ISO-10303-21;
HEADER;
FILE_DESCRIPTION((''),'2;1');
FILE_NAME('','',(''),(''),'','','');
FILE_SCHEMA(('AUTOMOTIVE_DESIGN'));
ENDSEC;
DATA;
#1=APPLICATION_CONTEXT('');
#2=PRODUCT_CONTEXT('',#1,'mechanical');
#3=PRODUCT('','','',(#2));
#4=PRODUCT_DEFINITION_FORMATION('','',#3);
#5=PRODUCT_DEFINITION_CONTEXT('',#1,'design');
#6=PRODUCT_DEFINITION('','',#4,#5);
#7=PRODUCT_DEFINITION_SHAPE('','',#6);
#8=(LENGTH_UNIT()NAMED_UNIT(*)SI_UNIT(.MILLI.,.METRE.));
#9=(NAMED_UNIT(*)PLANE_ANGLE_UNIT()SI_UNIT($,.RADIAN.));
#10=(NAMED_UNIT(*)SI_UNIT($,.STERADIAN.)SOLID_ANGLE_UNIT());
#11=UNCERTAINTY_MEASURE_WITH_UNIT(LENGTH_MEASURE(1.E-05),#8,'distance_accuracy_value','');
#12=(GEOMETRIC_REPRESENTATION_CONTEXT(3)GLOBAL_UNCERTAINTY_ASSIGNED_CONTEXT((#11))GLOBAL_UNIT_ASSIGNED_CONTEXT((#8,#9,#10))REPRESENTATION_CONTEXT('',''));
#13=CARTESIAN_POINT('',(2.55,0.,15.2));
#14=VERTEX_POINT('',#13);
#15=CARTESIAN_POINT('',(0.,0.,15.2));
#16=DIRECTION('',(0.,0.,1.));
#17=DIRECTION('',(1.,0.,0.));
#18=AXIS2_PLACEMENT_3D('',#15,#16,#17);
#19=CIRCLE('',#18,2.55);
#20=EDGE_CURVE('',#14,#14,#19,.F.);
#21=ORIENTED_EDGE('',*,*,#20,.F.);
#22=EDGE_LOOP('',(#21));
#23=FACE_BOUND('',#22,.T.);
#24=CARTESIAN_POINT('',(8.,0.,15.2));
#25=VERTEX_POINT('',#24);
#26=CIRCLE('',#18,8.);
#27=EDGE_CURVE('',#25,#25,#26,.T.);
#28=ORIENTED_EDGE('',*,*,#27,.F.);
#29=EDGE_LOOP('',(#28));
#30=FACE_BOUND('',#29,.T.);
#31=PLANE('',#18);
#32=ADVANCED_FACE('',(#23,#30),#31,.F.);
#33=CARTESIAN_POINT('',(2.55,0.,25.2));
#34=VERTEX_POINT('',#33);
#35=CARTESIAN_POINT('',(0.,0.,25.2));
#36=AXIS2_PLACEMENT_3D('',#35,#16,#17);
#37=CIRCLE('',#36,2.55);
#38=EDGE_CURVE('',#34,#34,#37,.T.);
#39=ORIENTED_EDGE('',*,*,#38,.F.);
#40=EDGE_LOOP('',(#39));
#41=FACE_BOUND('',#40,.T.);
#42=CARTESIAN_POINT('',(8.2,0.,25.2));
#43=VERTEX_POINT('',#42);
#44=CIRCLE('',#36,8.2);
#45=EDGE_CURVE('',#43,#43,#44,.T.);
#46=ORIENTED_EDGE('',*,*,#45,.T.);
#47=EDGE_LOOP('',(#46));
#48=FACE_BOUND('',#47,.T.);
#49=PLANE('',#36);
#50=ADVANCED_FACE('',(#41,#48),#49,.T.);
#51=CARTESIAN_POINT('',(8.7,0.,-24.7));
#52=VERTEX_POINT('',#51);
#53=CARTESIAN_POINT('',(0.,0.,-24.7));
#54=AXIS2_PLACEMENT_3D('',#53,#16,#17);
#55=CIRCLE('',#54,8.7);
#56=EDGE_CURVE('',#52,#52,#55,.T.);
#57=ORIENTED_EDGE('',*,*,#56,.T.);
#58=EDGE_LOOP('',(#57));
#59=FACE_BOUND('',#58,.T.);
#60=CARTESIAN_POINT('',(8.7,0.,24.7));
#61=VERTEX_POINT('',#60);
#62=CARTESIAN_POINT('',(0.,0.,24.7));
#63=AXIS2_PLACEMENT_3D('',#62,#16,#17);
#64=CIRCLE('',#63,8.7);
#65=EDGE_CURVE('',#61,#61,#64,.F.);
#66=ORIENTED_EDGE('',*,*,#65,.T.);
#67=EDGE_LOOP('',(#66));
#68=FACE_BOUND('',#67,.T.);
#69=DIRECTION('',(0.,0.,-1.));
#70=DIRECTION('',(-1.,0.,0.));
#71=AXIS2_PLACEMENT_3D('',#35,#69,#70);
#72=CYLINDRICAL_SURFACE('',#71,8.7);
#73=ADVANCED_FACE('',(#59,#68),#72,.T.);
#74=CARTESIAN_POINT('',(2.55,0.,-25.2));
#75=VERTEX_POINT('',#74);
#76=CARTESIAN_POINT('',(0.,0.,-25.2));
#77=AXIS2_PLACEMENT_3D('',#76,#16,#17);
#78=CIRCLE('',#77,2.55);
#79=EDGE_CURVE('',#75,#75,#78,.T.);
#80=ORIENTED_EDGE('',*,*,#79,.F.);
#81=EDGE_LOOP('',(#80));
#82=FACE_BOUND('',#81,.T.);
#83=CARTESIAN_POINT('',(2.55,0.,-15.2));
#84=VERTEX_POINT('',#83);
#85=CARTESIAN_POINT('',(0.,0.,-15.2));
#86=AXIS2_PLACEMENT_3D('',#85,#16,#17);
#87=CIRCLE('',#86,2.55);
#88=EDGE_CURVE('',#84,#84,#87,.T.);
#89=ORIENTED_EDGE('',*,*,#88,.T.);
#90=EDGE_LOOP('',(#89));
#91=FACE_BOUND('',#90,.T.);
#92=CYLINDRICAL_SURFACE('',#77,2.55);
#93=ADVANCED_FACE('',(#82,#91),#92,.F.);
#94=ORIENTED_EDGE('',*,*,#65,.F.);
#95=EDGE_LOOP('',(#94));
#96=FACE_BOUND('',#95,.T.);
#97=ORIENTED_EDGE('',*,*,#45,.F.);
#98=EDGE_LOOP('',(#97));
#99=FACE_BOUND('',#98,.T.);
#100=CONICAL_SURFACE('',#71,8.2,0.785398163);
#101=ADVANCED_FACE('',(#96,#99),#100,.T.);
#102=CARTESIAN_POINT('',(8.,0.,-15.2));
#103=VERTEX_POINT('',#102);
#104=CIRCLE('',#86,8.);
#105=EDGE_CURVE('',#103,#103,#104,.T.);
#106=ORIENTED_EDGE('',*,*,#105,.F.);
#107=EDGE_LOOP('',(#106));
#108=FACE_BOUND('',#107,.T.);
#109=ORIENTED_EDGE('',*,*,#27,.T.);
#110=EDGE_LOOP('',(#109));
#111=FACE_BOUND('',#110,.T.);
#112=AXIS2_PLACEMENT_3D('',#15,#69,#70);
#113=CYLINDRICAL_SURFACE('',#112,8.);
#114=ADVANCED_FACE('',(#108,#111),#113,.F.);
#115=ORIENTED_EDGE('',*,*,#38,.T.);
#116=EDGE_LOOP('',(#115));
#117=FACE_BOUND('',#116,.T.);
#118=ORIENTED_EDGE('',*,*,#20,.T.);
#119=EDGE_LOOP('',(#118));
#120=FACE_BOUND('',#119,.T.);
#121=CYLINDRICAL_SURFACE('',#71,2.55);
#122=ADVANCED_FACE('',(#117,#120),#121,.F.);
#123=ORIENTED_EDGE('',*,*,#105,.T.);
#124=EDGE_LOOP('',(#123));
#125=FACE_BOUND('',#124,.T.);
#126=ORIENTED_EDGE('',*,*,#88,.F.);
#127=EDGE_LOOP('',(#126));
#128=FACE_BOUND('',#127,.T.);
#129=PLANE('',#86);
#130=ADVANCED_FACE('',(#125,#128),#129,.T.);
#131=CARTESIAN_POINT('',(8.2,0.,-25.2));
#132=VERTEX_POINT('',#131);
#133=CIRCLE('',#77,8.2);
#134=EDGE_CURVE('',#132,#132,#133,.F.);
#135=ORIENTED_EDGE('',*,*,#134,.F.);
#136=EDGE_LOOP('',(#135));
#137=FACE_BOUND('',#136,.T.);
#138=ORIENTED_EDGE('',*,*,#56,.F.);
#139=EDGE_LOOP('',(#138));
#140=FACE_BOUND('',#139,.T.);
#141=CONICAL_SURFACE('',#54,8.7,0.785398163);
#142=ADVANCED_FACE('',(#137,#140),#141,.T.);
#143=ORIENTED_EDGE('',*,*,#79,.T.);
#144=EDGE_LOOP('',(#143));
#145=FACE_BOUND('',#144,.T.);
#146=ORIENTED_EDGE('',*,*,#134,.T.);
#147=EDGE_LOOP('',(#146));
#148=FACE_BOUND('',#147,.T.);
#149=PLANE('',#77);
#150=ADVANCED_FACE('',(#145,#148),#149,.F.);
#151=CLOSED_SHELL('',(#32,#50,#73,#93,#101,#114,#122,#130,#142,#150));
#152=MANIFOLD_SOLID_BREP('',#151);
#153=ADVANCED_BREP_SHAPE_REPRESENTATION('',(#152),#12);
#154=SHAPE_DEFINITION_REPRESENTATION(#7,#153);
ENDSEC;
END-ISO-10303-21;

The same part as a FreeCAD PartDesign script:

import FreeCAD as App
import Part
import Sketcher
Q = App.Units.Quantity


def edges_at(feature, points):
    """Names of the edges that pass closest to the given points."""
    edges = feature.Shape.Edges
    near = lambda p: min(range(len(edges)), key=lambda i: edges[i].distToShape(Part.Vertex(*p))[0])
    return sorted({f"Edge{near(p) + 1}" for p in points})

doc = App.newDocument("Part")
body = doc.addObject("PartDesign::Body", "Body")

# Sketch on XY plane
sketch1 = body.newObject("Sketcher::SketchObject", "Sketch")
sketch1.AttachmentSupport = (doc.getObject("XY_Plane"), [""])
sketch1.MapMode = "FlatFace"
sketch1.addGeometry(Part.Circle(App.Vector(0, 0, 0), App.Vector(0, 0, 1), 8.7), False)
sketch1.addConstraint([
    Sketcher.Constraint("Coincident", 0, 3, -1, 1),
    Sketcher.Constraint("Diameter", 0, Q("17.4 mm")),
])
pad1 = body.newObject("PartDesign::Pad", "Pad")
pad1.Profile = sketch1
pad1.Type = "TwoLengths"
pad1.Length = 25.2
pad1.Length2 = 25.2

# Sketch on XY plane
sketch2 = body.newObject("Sketcher::SketchObject", "Sketch001")
sketch2.AttachmentSupport = (doc.getObject("XY_Plane"), [""])
sketch2.MapMode = "FlatFace"
sketch2.addGeometry(Part.Circle(App.Vector(0, 0, 0), App.Vector(0, 0, 1), 8), False)
sketch2.addConstraint([
    Sketcher.Constraint("Coincident", 0, 3, -1, 1),
    Sketcher.Constraint("Diameter", 0, Q("16 mm")),
])
pocket1 = body.newObject("PartDesign::Pocket", "Pocket")
pocket1.Profile = sketch2
pocket1.Type = "TwoLengths"
pocket1.Length = 15.2
pocket1.Length2 = 15.2
pocket1.Reversed = True
doc.recompute()

chamfer = body.newObject("PartDesign::Chamfer", "Chamfer")
chamfer.Base = (pocket1, edges_at(pocket1, [(-8.7, 0, 25.2), (-8.7, 0, -25.2)]))
chamfer.Size = 0.5

# Sketch on XY plane
sketch3 = body.newObject("Sketcher::SketchObject", "Sketch002")
sketch3.AttachmentSupport = (doc.getObject("XY_Plane"), [""])
sketch3.MapMode = "FlatFace"
sketch3.addGeometry(Part.Circle(App.Vector(0, 0, 0), App.Vector(0, 0, 1), 2.55), False)
sketch3.addConstraint([
    Sketcher.Constraint("Coincident", 0, 3, -1, 1),
    Sketcher.Constraint("Diameter", 0, Q("5.1 mm")),
])
pocket2 = body.newObject("PartDesign::Pocket", "Pocket001")
pocket2.Profile = sketch3
pocket2.Type = "ThroughAll"
pocket2.Reversed = True

# Sketch on XY plane
sketch4 = body.newObject("Sketcher::SketchObject", "Sketch003")
sketch4.AttachmentSupport = (doc.getObject("XY_Plane"), [""])
sketch4.MapMode = "FlatFace"
sketch4.AttachmentOffset = App.Placement(App.Vector(0, 0, 25.2), App.Rotation())
sketch4.addGeometry(Part.Circle(App.Vector(0, 0, 0), App.Vector(0, 0, 1), 2.55), False)
sketch4.addConstraint([
    Sketcher.Constraint("Coincident", 0, 3, -1, 1),
    Sketcher.Constraint("Diameter", 0, Q("5.1 mm")),
])
pocket3 = body.newObject("PartDesign::Pocket", "Pocket002")
pocket3.Profile = sketch4
pocket3.Type = "ThroughAll"

doc.recompute()
